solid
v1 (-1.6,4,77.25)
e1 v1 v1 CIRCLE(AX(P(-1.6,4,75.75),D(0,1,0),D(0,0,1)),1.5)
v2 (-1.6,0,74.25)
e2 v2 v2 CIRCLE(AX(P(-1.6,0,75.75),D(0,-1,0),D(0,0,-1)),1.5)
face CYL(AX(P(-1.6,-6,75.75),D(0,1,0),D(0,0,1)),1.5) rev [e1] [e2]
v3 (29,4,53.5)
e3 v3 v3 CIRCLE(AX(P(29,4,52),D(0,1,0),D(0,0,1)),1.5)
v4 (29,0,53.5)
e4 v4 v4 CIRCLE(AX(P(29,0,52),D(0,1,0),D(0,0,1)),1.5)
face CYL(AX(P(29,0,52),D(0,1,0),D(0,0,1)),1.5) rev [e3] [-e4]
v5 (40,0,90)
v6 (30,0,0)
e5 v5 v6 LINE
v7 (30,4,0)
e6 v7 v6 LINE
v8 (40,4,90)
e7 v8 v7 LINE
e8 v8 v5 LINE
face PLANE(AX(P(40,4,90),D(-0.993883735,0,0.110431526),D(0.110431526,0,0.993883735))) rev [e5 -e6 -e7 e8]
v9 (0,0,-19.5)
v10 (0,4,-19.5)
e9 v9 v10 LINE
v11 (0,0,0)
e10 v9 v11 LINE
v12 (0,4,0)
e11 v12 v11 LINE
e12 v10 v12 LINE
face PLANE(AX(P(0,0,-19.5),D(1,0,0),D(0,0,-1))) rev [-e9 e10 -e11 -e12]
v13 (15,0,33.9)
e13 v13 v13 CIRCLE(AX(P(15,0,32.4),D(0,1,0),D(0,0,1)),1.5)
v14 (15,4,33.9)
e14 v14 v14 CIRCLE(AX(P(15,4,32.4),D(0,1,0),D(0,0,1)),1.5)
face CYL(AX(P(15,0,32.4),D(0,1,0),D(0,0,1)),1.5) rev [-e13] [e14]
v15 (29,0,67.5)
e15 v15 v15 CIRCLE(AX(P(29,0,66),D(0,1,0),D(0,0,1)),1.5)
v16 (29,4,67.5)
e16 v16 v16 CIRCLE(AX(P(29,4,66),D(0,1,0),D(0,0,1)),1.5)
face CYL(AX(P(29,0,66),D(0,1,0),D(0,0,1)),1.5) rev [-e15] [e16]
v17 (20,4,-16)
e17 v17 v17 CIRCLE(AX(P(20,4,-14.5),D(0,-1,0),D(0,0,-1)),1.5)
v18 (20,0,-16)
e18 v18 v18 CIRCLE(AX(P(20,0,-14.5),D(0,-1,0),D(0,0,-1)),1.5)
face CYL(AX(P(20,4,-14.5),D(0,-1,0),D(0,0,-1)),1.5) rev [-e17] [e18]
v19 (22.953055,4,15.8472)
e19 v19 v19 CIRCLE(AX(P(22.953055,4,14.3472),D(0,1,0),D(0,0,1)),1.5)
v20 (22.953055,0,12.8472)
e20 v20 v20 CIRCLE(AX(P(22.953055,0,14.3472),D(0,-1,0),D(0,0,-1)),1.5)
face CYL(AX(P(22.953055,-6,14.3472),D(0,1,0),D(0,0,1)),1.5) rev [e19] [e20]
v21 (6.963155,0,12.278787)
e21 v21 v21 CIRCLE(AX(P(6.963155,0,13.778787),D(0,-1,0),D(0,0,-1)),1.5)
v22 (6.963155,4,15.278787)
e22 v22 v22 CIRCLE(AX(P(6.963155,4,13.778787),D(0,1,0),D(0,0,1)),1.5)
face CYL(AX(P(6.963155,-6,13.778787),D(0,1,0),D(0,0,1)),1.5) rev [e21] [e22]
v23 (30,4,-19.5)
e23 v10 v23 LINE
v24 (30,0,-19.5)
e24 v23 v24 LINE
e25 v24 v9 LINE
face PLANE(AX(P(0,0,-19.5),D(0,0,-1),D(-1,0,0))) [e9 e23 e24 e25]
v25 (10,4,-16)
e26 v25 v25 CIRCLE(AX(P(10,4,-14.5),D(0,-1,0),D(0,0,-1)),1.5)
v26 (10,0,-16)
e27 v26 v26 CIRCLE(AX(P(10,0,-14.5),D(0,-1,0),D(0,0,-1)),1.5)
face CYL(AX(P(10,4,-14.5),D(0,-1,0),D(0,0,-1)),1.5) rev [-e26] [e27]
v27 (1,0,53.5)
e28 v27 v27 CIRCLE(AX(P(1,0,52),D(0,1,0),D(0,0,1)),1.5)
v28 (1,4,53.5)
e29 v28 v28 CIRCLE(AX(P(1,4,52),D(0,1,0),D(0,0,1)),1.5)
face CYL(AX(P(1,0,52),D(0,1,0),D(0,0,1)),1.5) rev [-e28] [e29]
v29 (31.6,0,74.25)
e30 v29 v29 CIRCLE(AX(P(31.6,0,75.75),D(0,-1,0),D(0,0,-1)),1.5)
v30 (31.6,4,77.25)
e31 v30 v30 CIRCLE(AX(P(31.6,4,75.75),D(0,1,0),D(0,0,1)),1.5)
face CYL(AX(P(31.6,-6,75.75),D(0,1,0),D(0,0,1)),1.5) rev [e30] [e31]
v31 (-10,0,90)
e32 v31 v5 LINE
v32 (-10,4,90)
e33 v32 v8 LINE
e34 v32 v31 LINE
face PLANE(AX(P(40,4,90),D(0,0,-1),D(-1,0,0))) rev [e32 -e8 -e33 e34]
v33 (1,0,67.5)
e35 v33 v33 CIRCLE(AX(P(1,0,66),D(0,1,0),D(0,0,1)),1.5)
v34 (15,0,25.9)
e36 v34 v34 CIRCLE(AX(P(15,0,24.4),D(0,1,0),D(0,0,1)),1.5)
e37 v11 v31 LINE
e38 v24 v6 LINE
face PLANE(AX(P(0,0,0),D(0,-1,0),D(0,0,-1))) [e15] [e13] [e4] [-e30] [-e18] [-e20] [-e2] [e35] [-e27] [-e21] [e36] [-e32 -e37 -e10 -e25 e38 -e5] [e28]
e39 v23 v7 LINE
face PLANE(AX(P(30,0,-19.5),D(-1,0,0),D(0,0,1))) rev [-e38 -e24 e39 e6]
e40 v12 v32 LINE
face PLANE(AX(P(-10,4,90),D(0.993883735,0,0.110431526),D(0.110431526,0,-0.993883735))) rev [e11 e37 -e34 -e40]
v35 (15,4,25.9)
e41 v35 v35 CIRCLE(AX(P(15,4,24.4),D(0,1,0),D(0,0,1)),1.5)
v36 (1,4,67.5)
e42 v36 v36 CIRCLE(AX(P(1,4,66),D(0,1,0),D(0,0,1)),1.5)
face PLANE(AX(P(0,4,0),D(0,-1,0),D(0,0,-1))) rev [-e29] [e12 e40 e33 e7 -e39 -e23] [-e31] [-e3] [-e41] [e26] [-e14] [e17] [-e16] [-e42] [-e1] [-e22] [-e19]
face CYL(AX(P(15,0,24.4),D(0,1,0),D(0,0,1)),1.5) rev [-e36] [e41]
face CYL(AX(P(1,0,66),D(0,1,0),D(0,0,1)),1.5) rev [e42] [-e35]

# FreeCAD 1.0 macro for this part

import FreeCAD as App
import Part
import Sketcher
from FreeCAD import Vector


def add_polygon(sketch, points):
    """Adds a closed chain of lines whose ends are joined by coincident constraints."""
    first, n = sketch.GeometryCount, len(points)
    for a, b in zip(points, points[1:] + points[:1]):
        sketch.addGeometry(Part.LineSegment(App.Vector(*a, 0), App.Vector(*b, 0)), False)
    for i in range(n):
        sketch.addConstraint(Sketcher.Constraint("Coincident", first + i, 2, first + (i + 1) % n, 1))

doc = App.newDocument("Part")
body = doc.addObject("PartDesign::Body", "Body")

sketch1 = doc.addObject("Sketcher::SketchObject", "Sketch")
body.addObject(sketch1)
sketch1.AttachmentSupport = (doc.XZ_Plane, [""])
sketch1.MapMode = "FlatFace"
add_polygon(sketch1, [(30, 0), (0, 0), (-10, 90), (40, 90)])
sketch1.addConstraint([
    Sketcher.Constraint("Horizontal", 0),
    Sketcher.Constraint("Horizontal", 2),
    Sketcher.Constraint("Coincident", 0, 2, -1, 1),
    Sketcher.Constraint("Equal", 1, 3),
    Sketcher.Constraint("DistanceX", 0, 2, 0, 1, 30.0),
    Sketcher.Constraint("DistanceX", 2, 1, 2, 2, 50.0),
    Sketcher.Constraint("DistanceY", -1, 1, 1, 2, 90.0),
])
pad1 = doc.addObject("PartDesign::Pad", "Pad")
body.addObject(pad1)
pad1.Profile = sketch1
pad1.Length = 4
pad1.Reversed = True

sketch2 = doc.addObject("Sketcher::SketchObject", "Sketch001")
body.addObject(sketch2)
sketch2.AttachmentSupport = (doc.XZ_Plane, [""])
sketch2.MapMode = "FlatFace"
sketch2.AttachmentOffset = App.Placement(Vector(0, 0, -4), App.Rotation())
sketch2.addGeometry([
    Part.Circle(Vector(1, 66, 0), Vector(0, 0, 1), 1.5),
    Part.Circle(Vector(1, 52, 0), Vector(0, 0, 1), 1.5),
    Part.Circle(Vector(29, 66, 0), Vector(0, 0, 1), 1.5),
    Part.Circle(Vector(29, 52, 0), Vector(0, 0, 1), 1.5),
], False)
sketch2.addConstraint([
    Sketcher.Constraint("Equal", 0, 1),
    Sketcher.Constraint("Equal", 1, 2),
    Sketcher.Constraint("Equal", 2, 3),
    Sketcher.Constraint("Horizontal", 0, 3, 2, 3),
    Sketcher.Constraint("Horizontal", 1, 3, 3, 3),
    Sketcher.Constraint("Vertical", 0, 3, 1, 3),
    Sketcher.Constraint("Vertical", 2, 3, 3, 3),
    Sketcher.Constraint("Diameter", 0, 3.0),
    Sketcher.Constraint("DistanceX", -1, 1, 0, 3, 1.0),
    Sketcher.Constraint("DistanceY", -1, 1, 0, 3, 66.0),
    Sketcher.Constraint("DistanceY", -1, 1, 1, 3, 52.0),
    Sketcher.Constraint("DistanceX", -1, 1, 2, 3, 29.0),
])
pocket1 = doc.addObject("PartDesign::Pocket", "Pocket")
body.addObject(pocket1)
pocket1.Profile = sketch2
pocket1.Type = "ThroughAll"
pocket1.Reversed = True

sketch3 = doc.addObject("Sketcher::SketchObject", "Sketch002")
body.addObject(sketch3)
sketch3.AttachmentSupport = (doc.XZ_Plane, [""])
sketch3.MapMode = "FlatFace"
sketch3.AttachmentOffset = App.Placement(Vector(0, 0, -4), App.Rotation())
sketch3.addGeometry([
    Part.Circle(Vector(15, 32.4, 0), Vector(0, 0, 1), 1.5),
    Part.Circle(Vector(15, 24.4, 0), Vector(0, 0, 1), 1.5),
], False)
sketch3.addConstraint([
    Sketcher.Constraint("Equal", 0, 1),
    Sketcher.Constraint("Vertical", 0, 3, 1, 3),
    Sketcher.Constraint("Diameter", 0, 3.0),
    Sketcher.Constraint("DistanceX", -1, 1, 0, 3, 15.0),
    Sketcher.Constraint("DistanceY", 1, 3, 0, 3, 8.0),
    Sketcher.Constraint("DistanceY", -1, 1, 0, 3, 32.4),
])
pocket2 = doc.addObject("PartDesign::Pocket", "Pocket001")
body.addObject(pocket2)
pocket2.Profile = sketch3
pocket2.Type = "ThroughAll"
pocket2.Reversed = True

sketch4 = doc.addObject("Sketcher::SketchObject", "Sketch003")
body.addObject(sketch4)
sketch4.AttachmentSupport = (doc.XZ_Plane, [""])
sketch4.MapMode = "FlatFace"
sketch4.AttachmentOffset = App.Placement(Vector(0, 0, -4), App.Rotation())
sketch4.addGeometry([
    Part.Circle(Vector(7, 13.8, 0), Vector(0, 0, 1), 1.5),
    Part.Circle(Vector(23, 14.3, 0), Vector(0, 0, 1), 1.5),
    Part.Circle(Vector(-1.6, 75.8, 0), Vector(0, 0, 1), 1.5),
    Part.Circle(Vector(31.6, 75.8, 0), Vector(0, 0, 1), 1.5),
], False)
sketch4.addConstraint([
    Sketcher.Constraint("Equal", 0, 1),
    Sketcher.Constraint("Equal", 1, 2),
    Sketcher.Constraint("Equal", 2, 3),
    Sketcher.Constraint("Horizontal", 2, 3, 3, 3),
    Sketcher.Constraint("Diameter", 0, 3.0),
    Sketcher.Constraint("DistanceX", 2, 3, -1, 1, 1.6),
    Sketcher.Constraint("DistanceX", -1, 1, 3, 3, 31.6),
    Sketcher.Constraint("DistanceY", -1, 1, 2, 3, 75.75),
    Sketcher.Constraint("DistanceY", -1, 1, 1, 3, 14.3472),
    Sketcher.Constraint("DistanceX", 0, 3, 1, 3, 15.9899),
    Sketcher.Constraint("DistanceX", -1, 1, 0, 3, 6.963155),
    Sketcher.Constraint("DistanceY", -1, 1, 0, 3, 13.778787),
])
pocket3 = doc.addObject("PartDesign::Pocket", "Pocket002")
body.addObject(pocket3)
pocket3.Profile = sketch4
pocket3.Length = 10
pocket3.Reversed = True

sketch5 = doc.addObject("Sketcher::SketchObject", "Sketch004")
body.addObject(sketch5)
sketch5.AttachmentSupport = (doc.XY_Plane, [""])
sketch5.MapMode = "FlatFace"
add_polygon(sketch5, [(30, 4), (30, 0), (0, 0), (0, 4)])
sketch5.addConstraint([
    Sketcher.Constraint("Vertical", 0),
    Sketcher.Constraint("Horizontal", 1),
    Sketcher.Constraint("Vertical", 2),
    Sketcher.Constraint("Horizontal", 3),
    Sketcher.Constraint("Coincident", 1, 2, -1, 1),
    Sketcher.Constraint("DistanceX", 1, 2, 1, 1, 30.0),
    Sketcher.Constraint("DistanceY", 0, 2, 0, 1, 4.0),
])
pad2 = doc.addObject("PartDesign::Pad", "Pad001")
body.addObject(pad2)
pad2.Profile = sketch5
pad2.Length = 19.5
pad2.Reversed = True

sketch6 = doc.addObject("Sketcher::SketchObject", "Sketch005")
body.addObject(sketch6)
sketch6.AttachmentSupport = (doc.XZ_Plane, [""])
sketch6.MapMode = "FlatFace"
sketch6.addGeometry([
    Part.Circle(Vector(10, -14.5, 0), Vector(0, 0, 1), 1.5),
    Part.Circle(Vector(20, -14.5, 0), Vector(0, 0, 1), 1.5),
], False)
sketch6.addConstraint([
    Sketcher.Constraint("Equal", 0, 1),
    Sketcher.Constraint("Horizontal", 0, 3, 1, 3),
    Sketcher.Constraint("Diameter", 0, 3.0),
    Sketcher.Constraint("DistanceX", -1, 1, 0, 3, 10.0),
    Sketcher.Constraint("DistanceX", -1, 1, 1, 3, 20.0),
    Sketcher.Constraint("DistanceY", 0, 3, -1, 1, 14.5),
])
pocket4 = doc.addObject("PartDesign::Pocket", "Pocket003")
body.addObject(pocket4)
pocket4.Profile = sketch6
pocket4.Type = "ThroughAll"

doc.recompute()
